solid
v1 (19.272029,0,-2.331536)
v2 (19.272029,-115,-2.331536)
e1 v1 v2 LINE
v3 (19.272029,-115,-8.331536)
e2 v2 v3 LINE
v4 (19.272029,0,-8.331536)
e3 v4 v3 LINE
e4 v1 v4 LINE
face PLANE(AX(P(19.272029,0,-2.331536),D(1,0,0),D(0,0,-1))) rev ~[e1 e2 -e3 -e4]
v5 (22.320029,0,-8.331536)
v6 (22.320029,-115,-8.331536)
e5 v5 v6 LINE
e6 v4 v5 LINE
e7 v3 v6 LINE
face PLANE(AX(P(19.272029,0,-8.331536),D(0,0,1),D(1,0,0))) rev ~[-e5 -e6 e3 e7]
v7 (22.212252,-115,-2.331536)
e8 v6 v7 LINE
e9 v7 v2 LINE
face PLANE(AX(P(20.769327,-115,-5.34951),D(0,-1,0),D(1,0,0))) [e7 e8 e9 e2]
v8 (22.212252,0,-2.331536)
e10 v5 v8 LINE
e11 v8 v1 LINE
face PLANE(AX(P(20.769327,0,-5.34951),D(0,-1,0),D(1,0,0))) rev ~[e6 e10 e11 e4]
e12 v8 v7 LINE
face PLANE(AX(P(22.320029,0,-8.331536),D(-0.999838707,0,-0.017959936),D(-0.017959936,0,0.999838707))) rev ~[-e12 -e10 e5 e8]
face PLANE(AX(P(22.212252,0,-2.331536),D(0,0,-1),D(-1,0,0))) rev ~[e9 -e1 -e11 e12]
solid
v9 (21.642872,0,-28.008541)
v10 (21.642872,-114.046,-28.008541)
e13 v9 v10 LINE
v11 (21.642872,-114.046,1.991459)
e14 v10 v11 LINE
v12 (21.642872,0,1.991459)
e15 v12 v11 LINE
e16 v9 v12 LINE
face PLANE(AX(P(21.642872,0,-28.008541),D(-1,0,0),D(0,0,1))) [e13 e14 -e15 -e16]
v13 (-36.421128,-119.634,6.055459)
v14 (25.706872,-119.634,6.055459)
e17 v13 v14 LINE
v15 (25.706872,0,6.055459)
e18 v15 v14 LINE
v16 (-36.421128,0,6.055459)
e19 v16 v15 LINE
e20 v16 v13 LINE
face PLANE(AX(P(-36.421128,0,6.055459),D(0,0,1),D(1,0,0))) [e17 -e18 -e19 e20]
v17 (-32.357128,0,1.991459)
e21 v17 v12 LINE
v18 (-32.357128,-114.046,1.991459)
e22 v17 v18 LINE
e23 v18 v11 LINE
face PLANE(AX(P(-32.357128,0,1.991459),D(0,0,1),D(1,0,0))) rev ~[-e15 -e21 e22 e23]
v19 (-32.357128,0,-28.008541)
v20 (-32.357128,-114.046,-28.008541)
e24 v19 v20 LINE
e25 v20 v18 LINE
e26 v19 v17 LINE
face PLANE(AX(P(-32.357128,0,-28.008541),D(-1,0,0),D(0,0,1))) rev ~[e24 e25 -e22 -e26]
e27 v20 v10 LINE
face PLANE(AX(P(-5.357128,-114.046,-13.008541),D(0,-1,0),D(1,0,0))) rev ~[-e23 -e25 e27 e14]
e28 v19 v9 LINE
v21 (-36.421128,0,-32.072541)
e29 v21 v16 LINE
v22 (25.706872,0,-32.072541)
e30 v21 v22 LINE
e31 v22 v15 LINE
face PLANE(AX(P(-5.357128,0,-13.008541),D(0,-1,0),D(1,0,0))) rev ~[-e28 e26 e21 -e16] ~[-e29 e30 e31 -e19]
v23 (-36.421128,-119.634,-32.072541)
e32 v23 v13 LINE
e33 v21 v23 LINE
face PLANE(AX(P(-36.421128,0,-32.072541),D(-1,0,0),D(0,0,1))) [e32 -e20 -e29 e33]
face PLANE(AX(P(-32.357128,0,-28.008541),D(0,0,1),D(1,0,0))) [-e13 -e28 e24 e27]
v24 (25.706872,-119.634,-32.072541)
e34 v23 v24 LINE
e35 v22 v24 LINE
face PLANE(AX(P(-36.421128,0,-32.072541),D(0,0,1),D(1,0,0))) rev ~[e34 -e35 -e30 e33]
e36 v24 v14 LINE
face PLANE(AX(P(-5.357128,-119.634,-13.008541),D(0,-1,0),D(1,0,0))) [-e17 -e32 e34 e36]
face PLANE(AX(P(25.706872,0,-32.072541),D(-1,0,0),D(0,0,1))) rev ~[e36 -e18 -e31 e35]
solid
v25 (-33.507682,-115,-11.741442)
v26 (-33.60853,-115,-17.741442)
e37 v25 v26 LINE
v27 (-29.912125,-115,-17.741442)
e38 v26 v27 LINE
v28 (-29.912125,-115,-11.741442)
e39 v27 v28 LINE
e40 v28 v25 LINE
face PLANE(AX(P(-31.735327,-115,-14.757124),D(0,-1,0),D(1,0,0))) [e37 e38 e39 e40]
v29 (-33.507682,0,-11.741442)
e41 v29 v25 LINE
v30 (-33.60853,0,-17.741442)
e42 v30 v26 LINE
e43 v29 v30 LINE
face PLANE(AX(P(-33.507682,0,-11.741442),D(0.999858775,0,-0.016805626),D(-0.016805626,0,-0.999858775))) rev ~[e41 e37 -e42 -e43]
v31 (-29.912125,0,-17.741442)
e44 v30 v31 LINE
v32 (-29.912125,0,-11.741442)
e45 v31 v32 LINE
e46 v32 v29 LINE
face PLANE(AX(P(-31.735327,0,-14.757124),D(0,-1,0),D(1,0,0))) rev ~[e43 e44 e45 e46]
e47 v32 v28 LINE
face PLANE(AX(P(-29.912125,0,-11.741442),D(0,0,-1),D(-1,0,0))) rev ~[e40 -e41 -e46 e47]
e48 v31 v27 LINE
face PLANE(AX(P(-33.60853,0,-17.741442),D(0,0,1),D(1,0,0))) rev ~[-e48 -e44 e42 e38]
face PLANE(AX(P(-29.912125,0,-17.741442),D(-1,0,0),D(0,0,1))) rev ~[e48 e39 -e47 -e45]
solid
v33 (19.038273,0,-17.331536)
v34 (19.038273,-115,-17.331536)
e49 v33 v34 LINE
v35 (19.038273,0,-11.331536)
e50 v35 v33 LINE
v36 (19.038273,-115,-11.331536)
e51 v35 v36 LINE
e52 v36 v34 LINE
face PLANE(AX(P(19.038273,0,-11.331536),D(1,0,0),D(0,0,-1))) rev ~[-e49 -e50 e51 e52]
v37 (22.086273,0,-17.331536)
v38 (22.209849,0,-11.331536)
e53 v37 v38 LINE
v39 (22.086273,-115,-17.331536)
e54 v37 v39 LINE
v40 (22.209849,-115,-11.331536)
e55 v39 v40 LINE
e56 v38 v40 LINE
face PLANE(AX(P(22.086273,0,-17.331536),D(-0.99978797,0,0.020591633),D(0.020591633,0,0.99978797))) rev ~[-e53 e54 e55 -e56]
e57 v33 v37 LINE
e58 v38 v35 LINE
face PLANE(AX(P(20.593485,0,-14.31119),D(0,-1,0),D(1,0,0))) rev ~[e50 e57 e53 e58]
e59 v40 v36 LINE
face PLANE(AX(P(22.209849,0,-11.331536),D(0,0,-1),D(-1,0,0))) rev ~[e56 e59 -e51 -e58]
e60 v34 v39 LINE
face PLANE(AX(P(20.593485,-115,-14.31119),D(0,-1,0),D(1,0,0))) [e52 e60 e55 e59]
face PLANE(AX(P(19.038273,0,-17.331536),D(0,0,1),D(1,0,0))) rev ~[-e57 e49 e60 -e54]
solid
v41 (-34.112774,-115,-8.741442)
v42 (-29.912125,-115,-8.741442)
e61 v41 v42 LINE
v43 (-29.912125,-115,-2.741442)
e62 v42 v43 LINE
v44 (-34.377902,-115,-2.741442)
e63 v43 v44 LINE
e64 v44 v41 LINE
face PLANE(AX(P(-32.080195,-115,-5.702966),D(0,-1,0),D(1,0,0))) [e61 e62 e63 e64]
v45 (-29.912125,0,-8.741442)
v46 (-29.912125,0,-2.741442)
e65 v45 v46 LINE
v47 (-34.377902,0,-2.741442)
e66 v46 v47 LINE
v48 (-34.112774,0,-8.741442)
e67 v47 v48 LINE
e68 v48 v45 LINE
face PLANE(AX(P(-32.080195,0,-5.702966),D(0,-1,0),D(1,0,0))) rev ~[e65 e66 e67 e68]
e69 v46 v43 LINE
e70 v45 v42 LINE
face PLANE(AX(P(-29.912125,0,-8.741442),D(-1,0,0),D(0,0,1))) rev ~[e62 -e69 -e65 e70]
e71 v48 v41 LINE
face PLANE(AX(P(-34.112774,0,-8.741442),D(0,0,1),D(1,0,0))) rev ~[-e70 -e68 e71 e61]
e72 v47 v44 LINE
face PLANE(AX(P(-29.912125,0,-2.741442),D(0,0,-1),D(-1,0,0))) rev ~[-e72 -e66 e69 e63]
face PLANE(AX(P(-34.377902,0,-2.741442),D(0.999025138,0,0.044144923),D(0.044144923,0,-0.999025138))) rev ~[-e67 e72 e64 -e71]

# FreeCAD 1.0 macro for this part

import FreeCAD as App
import Part
import Sketcher
Q = App.Units.Quantity


def add_polygon(sketch, points):
    """Adds a closed chain of lines whose ends are joined by coincident constraints."""
    first, n = sketch.GeometryCount, len(points)
    for a, b in zip(points, points[1:] + points[:1]):
        sketch.addGeometry(Part.LineSegment(App.Vector(*a, 0), App.Vector(*b, 0)), False)
    for i in range(n):
        sketch.addConstraint(Sketcher.Constraint("Coincident", first + i, 2, first + (i + 1) % n, 1))

doc = App.newDocument("Part")
params = doc.addObject("Spreadsheet::Sheet", "Params")
for row, (alias, value) in enumerate([
    ("sketch1_width", "54 mm"),
    ("sketch1_height", "30 mm"),
    ("pad1_length", "115 mm"),
    ("pad2_length", "119.634 mm"),
    ("sketch3_width", "54 mm"),
    ("sketch3_height", "30 mm"),
    ("pocket1_length", "25.4 mm"),
    ("sketch4_width", "54 mm"),
    ("sketch4_height", "30 mm"),
    ("pocket2_length", "114.046 mm"),
    ("sketch5_height", "6 mm"),
    ("pad3_length", "115 mm"),
], start=1):
    params.set(f"A{row}", alias)
    params.set(f"B{row}", "=" + value)
    params.setAlias(f"B{row}", alias)

body = doc.addObject("PartDesign::Body", "Body")

# Sketch on XZ plane
sketch1 = body.newObject("Sketcher::SketchObject", "Sketch")
sketch1.AttachmentSupport = (doc.getObject("XZ_Plane"), [""])
sketch1.MapMode = "FlatFace"
add_polygon(sketch1, [(-32.357128, 1.991459), (-32.357128, -28.008541), (21.642872, -28.008541), (21.642872, 1.991459)])  # lines 0-3
sketch1.addConstraint([
    Sketcher.Constraint("Vertical", 0),
    Sketcher.Constraint("Horizontal", 1),
    Sketcher.Constraint("Vertical", 2),
    Sketcher.Constraint("Horizontal", 3),
    Sketcher.Constraint("DistanceX", 1, 1, 1, 2, Q("54 mm")),
    Sketcher.Constraint("DistanceY", 0, 2, 0, 1, Q("30 mm")),
    Sketcher.Constraint("DistanceX", 0, 2, -1, 1, Q("32.357128 mm")),
    Sketcher.Constraint("DistanceY", 0, 2, -1, 1, Q("28.008541 mm")),
])
sketch1.setExpression("Constraints[8]", "Params.sketch1_width")
sketch1.setExpression("Constraints[9]", "Params.sketch1_height")
pad1 = body.newObject("PartDesign::Pad", "Pad")
pad1.Profile = sketch1
pad1.setExpression("Length", "Params.pad1_length")

# Sketch on XZ plane
sketch2 = body.newObject("Sketcher::SketchObject", "Sketch001")
sketch2.AttachmentSupport = (doc.getObject("XZ_Plane"), [""])
sketch2.MapMode = "FlatFace"
add_polygon(sketch2, [(-36.421128, 6.055459), (-36.421128, -32.072541), (25.706872, -32.072541), (25.706872, 6.055459)])  # lines 0-3
sketch2.addConstraint([
    Sketcher.Constraint("Vertical", 0),
    Sketcher.Constraint("Horizontal", 1),
    Sketcher.Constraint("Vertical", 2),
    Sketcher.Constraint("Horizontal", 3),
    Sketcher.Constraint("DistanceX", 1, 1, 1, 2, Q("62.128 mm")),
    Sketcher.Constraint("DistanceY", 0, 2, 0, 1, Q("38.128 mm")),
    Sketcher.Constraint("DistanceX", 0, 2, -1, 1, Q("36.421128 mm")),
    Sketcher.Constraint("DistanceY", 0, 2, -1, 1, Q("32.072541 mm")),
])
pad2 = body.newObject("PartDesign::Pad", "Pad001")
pad2.Profile = sketch2
pad2.setExpression("Length", "Params.pad2_length")

# Sketch on XZ plane
sketch3 = body.newObject("Sketcher::SketchObject", "Sketch002")
sketch3.AttachmentSupport = (doc.getObject("XZ_Plane"), [""])
sketch3.MapMode = "FlatFace"
add_polygon(sketch3, [(-32.357128, 1.991459), (-32.357128, -28.008541), (21.642872, -28.008541), (21.642872, 1.991459)])  # lines 0-3
sketch3.addConstraint([
    Sketcher.Constraint("Vertical", 0),
    Sketcher.Constraint("Horizontal", 1),
    Sketcher.Constraint("Vertical", 2),
    Sketcher.Constraint("Horizontal", 3),
    Sketcher.Constraint("DistanceX", 1, 1, 1, 2, Q("54 mm")),
    Sketcher.Constraint("DistanceY", 0, 2, 0, 1, Q("30 mm")),
    Sketcher.Constraint("DistanceX", 0, 2, -1, 1, Q("32.357128 mm")),
    Sketcher.Constraint("DistanceY", 0, 2, -1, 1, Q("28.008541 mm")),
])
sketch3.setExpression("Constraints[8]", "Params.sketch3_width")
sketch3.setExpression("Constraints[9]", "Params.sketch3_height")
pocket1 = body.newObject("PartDesign::Pocket", "Pocket")
pocket1.Profile = sketch3
pocket1.setExpression("Length", "Params.pocket1_length")

# Sketch on XZ plane
sketch4 = body.newObject("Sketcher::SketchObject", "Sketch003")
sketch4.AttachmentSupport = (doc.getObject("XZ_Plane"), [""])
sketch4.MapMode = "FlatFace"
add_polygon(sketch4, [(-32.357128, 1.991459), (-32.357128, -28.008541), (21.642872, -28.008541), (21.642872, 1.991459)])  # lines 0-3
sketch4.addConstraint([
    Sketcher.Constraint("Vertical", 0),
    Sketcher.Constraint("Horizontal", 1),
    Sketcher.Constraint("Vertical", 2),
    Sketcher.Constraint("Horizontal", 3),
    Sketcher.Constraint("DistanceX", 1, 1, 1, 2, Q("54 mm")),
    Sketcher.Constraint("DistanceY", 0, 2, 0, 1, Q("30 mm")),
    Sketcher.Constraint("DistanceX", 0, 2, -1, 1, Q("32.357128 mm")),
    Sketcher.Constraint("DistanceY", 0, 2, -1, 1, Q("28.008541 mm")),
])
sketch4.setExpression("Constraints[8]", "Params.sketch4_width")
sketch4.setExpression("Constraints[9]", "Params.sketch4_height")
pocket2 = body.newObject("PartDesign::Pocket", "Pocket001")
pocket2.Profile = sketch4
pocket2.setExpression("Length", "Params.pocket2_length")
pocket2.Reversed = True
body2 = doc.addObject("PartDesign::Body", "Body001")
body2.AllowCompound = True

# Sketch on XZ plane
sketch5 = body2.newObject("Sketcher::SketchObject", "Sketch004")
sketch5.AttachmentSupport = (doc.getObject("XZ_Plane001"), [""])
sketch5.MapMode = "FlatFace"
add_polygon(sketch5, [(22.086273, -17.331536), (22.209849, -11.331536), (19.038273, -11.331536), (19.038273, -17.331536)])  # lines 0-3
add_polygon(sketch5, [(19.272029, -8.331536), (22.320029, -8.331536), (22.212252, -2.331536), (19.272029, -2.331536)])  # lines 4-7
add_polygon(sketch5, [(-29.912125, -8.741442), (-29.912125, -2.741442), (-34.377902, -2.741442), (-34.112774, -8.741442)])  # lines 8-11
add_polygon(sketch5, [(-29.912125, -17.741442), (-29.912125, -11.741442), (-33.507682, -11.741442), (-33.60853, -17.741442)])  # lines 12-15
sketch5.addConstraint([
    Sketcher.Constraint("Horizontal", 1),
    Sketcher.Constraint("Vertical", 2),
    Sketcher.Constraint("Horizontal", 3),
    Sketcher.Constraint("Horizontal", 4),
    Sketcher.Constraint("Horizontal", 6),
    Sketcher.Constraint("Vertical", 7),
    Sketcher.Constraint("Vertical", 8),
    Sketcher.Constraint("Horizontal", 9),
    Sketcher.Constraint("Horizontal", 11),
    Sketcher.Constraint("Vertical", 12),
    Sketcher.Constraint("Horizontal", 13),
    Sketcher.Constraint("Horizontal", 15),
    Sketcher.Constraint("Vertical", 11, 2, 12, 2),
    Sketcher.Constraint("Equal", 3, 4),
    Sketcher.Constraint("Equal", 2, 7),
    Sketcher.Constraint("Equal", 7, 8),
    Sketcher.Constraint("Equal", 8, 12),
    Sketcher.Constraint("DistanceY", 2, 2, 2, 1, Q("6 mm")),
    Sketcher.Constraint("DistanceY", 0, 2, 4, 2, Q("3 mm")),
    Sketcher.Constraint("DistanceY", 12, 2, 11, 2, Q("3 mm")),
    Sketcher.Constraint("DistanceX", 3, 1, 3, 2, Q("3.048 mm")),
    Sketcher.Constraint("DistanceX", 11, 1, 11, 2, Q("4.200649 mm")),
    Sketcher.Constraint("DistanceX", 1, 2, 1, 1, Q("3.171576 mm")),
    Sketcher.Constraint("DistanceX", 6, 2, 6, 1, Q("2.940223 mm")),
    Sketcher.Constraint("DistanceX", 9, 2, 9, 1, Q("4.465777 mm")),
    Sketcher.Constraint("DistanceX", 13, 2, 13, 1, Q("3.595557 mm")),
    Sketcher.Constraint("DistanceX", 15, 1, 15, 2, Q("3.696405 mm")),
    Sketcher.Constraint("DistanceX", -1, 1, 0, 2, Q("22.209849 mm")),
    Sketcher.Constraint("DistanceX", -1, 1, 4, 2, Q("22.320029 mm")),
    Sketcher.Constraint("DistanceY", 10, 2, -1, 1, Q("8.741442 mm")),
    Sketcher.Constraint("DistanceX", 14, 2, -1, 1, Q("33.60853 mm")),
    Sketcher.Constraint("DistanceY", 0, 2, -1, 1, Q("11.331536 mm")),
])
sketch5.setExpression("Constraints[33]", "Params.sketch5_height")
pad3 = body2.newObject("PartDesign::Pad", "Pad002")
pad3.Profile = sketch5
pad3.setExpression("Length", "Params.pad3_length")

doc.recompute()
